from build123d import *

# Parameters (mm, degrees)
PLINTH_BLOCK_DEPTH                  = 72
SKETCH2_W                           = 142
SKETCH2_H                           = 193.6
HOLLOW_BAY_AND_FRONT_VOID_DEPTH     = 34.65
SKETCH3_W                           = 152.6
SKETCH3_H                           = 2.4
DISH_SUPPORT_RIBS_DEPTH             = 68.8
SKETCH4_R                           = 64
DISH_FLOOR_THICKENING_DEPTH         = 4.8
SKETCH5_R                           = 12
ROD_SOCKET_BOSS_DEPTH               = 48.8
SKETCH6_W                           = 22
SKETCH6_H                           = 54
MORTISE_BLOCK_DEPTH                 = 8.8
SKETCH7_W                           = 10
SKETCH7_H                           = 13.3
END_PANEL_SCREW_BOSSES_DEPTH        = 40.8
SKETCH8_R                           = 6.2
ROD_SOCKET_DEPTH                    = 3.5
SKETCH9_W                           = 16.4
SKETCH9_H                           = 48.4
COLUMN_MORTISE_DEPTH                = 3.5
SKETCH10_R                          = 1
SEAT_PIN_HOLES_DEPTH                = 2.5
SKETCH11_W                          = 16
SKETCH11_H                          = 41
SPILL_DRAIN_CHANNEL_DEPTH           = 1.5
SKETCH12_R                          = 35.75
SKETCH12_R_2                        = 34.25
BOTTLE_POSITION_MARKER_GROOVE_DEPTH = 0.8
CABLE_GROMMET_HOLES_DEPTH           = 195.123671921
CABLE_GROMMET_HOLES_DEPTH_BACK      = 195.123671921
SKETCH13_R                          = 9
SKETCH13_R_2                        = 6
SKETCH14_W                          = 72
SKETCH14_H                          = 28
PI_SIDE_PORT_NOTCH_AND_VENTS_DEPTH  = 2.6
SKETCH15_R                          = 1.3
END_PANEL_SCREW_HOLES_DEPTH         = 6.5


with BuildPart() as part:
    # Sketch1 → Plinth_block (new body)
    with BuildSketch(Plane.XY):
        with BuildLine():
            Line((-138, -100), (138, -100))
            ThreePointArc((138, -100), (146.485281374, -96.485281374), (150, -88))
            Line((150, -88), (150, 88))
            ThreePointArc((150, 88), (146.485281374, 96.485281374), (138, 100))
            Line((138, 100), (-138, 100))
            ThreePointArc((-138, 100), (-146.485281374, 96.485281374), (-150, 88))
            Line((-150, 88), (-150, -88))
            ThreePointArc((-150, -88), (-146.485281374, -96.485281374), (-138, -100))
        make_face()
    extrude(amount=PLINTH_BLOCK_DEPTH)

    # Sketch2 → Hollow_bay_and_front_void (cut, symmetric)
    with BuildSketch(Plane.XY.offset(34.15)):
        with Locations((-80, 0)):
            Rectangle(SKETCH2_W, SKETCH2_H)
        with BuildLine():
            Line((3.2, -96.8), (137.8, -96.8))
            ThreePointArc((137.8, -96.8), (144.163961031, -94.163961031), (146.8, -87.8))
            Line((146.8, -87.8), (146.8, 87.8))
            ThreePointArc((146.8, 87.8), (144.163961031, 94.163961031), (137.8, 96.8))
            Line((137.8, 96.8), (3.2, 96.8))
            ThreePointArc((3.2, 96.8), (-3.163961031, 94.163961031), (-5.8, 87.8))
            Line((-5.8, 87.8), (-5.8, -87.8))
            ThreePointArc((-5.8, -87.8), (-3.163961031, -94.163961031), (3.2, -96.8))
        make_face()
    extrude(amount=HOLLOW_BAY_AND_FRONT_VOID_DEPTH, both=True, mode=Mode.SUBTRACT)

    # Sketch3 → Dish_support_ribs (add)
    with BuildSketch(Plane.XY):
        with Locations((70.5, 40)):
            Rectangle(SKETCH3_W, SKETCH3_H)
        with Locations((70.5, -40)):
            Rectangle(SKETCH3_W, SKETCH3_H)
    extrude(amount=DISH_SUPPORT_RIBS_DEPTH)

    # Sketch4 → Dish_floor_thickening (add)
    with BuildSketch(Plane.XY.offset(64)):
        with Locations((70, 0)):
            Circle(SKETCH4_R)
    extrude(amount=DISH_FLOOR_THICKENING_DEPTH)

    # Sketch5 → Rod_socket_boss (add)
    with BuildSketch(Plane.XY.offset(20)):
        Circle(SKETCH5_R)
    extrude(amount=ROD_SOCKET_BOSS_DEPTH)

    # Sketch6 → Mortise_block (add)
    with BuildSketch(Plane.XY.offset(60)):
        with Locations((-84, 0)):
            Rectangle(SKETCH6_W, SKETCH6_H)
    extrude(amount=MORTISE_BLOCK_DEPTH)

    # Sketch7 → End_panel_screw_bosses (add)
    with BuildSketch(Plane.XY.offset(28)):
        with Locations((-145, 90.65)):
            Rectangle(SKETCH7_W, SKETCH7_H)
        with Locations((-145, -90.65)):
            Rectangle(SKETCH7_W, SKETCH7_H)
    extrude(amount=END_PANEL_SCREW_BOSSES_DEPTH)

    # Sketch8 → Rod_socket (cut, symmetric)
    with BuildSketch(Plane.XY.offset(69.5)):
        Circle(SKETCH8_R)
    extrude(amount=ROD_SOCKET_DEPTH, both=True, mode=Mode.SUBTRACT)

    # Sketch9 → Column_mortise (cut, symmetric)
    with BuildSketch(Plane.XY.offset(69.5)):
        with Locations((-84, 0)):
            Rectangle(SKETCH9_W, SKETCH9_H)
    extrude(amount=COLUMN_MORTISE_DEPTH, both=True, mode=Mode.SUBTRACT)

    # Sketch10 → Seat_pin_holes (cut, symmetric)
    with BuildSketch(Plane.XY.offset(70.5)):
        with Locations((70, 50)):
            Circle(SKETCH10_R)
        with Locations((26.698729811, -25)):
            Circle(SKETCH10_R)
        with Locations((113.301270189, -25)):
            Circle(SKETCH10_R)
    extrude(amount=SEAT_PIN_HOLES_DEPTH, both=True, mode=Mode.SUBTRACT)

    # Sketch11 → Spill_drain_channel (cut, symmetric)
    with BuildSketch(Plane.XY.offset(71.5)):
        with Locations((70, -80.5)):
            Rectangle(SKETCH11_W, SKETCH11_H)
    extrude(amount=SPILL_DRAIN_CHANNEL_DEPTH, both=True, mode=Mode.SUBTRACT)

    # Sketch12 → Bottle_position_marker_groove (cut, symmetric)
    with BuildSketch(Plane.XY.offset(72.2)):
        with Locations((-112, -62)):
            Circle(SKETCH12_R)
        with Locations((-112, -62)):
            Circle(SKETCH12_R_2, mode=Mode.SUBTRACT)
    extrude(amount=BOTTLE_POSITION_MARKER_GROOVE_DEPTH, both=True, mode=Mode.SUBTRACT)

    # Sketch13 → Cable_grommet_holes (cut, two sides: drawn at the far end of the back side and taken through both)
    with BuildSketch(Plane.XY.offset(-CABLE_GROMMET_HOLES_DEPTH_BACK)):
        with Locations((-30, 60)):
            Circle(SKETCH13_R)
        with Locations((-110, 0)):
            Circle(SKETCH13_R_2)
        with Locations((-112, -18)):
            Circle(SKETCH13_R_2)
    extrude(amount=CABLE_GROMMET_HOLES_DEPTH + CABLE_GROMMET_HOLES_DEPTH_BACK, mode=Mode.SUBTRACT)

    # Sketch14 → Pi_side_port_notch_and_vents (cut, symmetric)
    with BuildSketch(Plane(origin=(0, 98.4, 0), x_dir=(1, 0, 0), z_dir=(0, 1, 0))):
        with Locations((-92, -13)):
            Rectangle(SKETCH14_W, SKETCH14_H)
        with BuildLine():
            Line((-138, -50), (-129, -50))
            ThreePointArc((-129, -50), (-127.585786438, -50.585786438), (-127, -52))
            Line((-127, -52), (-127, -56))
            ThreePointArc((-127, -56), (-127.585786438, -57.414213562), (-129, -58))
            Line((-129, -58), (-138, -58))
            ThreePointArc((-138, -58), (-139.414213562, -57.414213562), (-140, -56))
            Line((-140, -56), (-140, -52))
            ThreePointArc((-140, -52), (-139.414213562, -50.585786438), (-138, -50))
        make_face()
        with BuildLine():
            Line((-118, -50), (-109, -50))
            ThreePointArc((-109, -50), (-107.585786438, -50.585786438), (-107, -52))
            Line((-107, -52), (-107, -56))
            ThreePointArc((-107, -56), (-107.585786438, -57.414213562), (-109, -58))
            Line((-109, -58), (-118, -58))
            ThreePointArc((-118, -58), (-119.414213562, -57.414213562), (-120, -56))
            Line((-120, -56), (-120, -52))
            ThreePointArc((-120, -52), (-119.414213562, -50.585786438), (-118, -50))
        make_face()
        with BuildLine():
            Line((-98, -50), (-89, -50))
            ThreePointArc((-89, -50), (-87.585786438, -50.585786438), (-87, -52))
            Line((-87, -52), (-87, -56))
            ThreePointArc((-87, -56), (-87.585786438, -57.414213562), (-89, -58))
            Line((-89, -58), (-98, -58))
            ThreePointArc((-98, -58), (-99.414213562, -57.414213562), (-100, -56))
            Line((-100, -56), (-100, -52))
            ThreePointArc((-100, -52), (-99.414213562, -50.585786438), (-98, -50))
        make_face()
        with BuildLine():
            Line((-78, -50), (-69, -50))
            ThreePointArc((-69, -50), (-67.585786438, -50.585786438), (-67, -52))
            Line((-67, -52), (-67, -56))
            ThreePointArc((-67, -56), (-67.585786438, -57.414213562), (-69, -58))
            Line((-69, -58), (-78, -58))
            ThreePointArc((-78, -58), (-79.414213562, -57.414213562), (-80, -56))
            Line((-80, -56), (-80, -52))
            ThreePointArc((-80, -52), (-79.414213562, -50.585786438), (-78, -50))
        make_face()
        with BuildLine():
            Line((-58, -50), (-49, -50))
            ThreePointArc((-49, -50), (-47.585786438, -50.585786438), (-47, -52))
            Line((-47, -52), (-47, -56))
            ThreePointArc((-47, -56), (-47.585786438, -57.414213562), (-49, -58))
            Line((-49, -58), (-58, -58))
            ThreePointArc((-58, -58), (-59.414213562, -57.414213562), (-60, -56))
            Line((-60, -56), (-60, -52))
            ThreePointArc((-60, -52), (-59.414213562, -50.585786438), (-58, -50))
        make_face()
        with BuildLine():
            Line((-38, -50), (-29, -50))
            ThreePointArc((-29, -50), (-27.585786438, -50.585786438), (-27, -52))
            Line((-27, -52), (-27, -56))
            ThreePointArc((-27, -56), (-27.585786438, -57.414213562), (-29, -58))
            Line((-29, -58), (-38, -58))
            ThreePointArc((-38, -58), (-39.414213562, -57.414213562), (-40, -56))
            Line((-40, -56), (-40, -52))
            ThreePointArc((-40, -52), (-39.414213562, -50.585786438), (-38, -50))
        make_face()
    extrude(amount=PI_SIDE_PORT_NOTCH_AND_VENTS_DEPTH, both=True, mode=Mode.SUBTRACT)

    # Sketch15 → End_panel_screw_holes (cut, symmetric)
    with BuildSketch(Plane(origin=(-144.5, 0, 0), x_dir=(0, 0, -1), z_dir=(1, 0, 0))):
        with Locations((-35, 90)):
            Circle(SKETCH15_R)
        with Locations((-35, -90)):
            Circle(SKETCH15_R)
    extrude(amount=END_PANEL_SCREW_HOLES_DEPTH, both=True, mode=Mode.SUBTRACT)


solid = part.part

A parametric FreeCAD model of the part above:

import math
import FreeCAD as App
import Part
import Sketcher
from FreeCAD import Vector


def add_polygon(sketch, points):
    """Adds a closed chain of lines whose ends are joined by coincident constraints."""
    first, n = sketch.GeometryCount, len(points)
    for a, b in zip(points, points[1:] + points[:1]):
        sketch.addGeometry(Part.LineSegment(App.Vector(*a, 0), App.Vector(*b, 0)), False)
    for i in range(n):
        sketch.addConstraint(Sketcher.Constraint("Coincident", first + i, 2, first + (i + 1) % n, 1))

doc = App.newDocument("Part")
params = doc.addObject("Spreadsheet::Sheet", "Params")
for row, (alias, value) in enumerate([
    ("sketch1_radius", "12 mm"),
    ("sketch1_width", "276 mm"),
    ("sketch1_height", "176 mm"),
    ("pad1_length", "72 mm"),
    ("sketch2_radius", "9 mm"),
    ("sketch2_width", "142 mm"),
    ("sketch2_width2", "134.6 mm"),
    ("sketch2_height", "193.6 mm"),
    ("pocket1_length", "69.3 mm"),
    ("sketch3_width", "152.6 mm"),
    ("sketch3_height", "2.4 mm"),
    ("pad2_length", "68.8 mm"),
    ("sketch4_diameter", "128 mm"),
    ("pad3_length", "4.8 mm"),
    ("sketch5_diameter", "24 mm"),
    ("pad4_length", "48.8 mm"),
    ("sketch6_width", "22 mm"),
    ("sketch6_height", "54 mm"),
    ("pad5_length", "8.8 mm"),
    ("sketch7_width", "10 mm"),
    ("sketch7_height", "13.3 mm"),
    ("pad6_length", "40.8 mm"),
    ("sketch8_diameter", "12.4 mm"),
    ("pocket2_length", "7 mm"),
    ("sketch9_width", "16.4 mm"),
    ("sketch9_height", "48.4 mm"),
    ("pocket3_length", "7 mm"),
    ("sketch10_diameter", "2 mm"),
    ("pocket4_length", "5 mm"),
    ("sketch11_width", "16 mm"),
    ("sketch11_height", "41 mm"),
    ("pocket5_length", "3 mm"),
    ("sketch12_diameter", "71.5 mm"),
    ("sketch12_diameter2", "68.5 mm"),
    ("pocket6_length", "1.6 mm"),
    ("sketch13_diameter", "18 mm"),
    ("sketch13_diameter2", "12 mm"),
    ("sketch14_radius", "2 mm"),
    ("sketch14_width", "72 mm"),
    ("sketch14_width2", "9 mm"),
    ("sketch14_height", "28 mm"),
    ("sketch14_height2", "4 mm"),
    ("pocket8_length", "5.2 mm"),
    ("sketch15_diameter", "2.6 mm"),
    ("pocket9_length", "13 mm"),
], start=1):
    params.set(f"A{row}", alias)
    params.set(f"B{row}", "=" + value)
    params.setAlias(f"B{row}", alias)

body = doc.addObject("PartDesign::Body", "Body")

sketch1 = body.newObject("Sketcher::SketchObject", "Sketch")
sketch1.AttachmentSupport = (doc.getObject("XY_Plane"), [""])
sketch1.MapMode = "FlatFace"
sketch1.addGeometry(Part.LineSegment(Vector(-138, -100, 0), Vector(138, -100, 0)), False)
sketch1.addGeometry(Part.ArcOfCircle(Part.Circle(Vector(138, -88, 0), Vector(0, 0, 1), 12), math.radians(-90), math.radians(0)), False)
sketch1.addGeometry(Part.LineSegment(Vector(150, -88, 0), Vector(150, 88, 0)), False)
sketch1.addGeometry(Part.ArcOfCircle(Part.Circle(Vector(138, 88, 0), Vector(0, 0, 1), 12), math.radians(0), math.radians(90)), False)
sketch1.addGeometry(Part.LineSegment(Vector(138, 100, 0), Vector(-138, 100, 0)), False)
sketch1.addGeometry(Part.ArcOfCircle(Part.Circle(Vector(-138, 88, 0), Vector(0, 0, 1), 12), math.radians(90), math.radians(180)), False)
sketch1.addGeometry(Part.LineSegment(Vector(-150, 88, 0), Vector(-150, -88, 0)), False)
sketch1.addGeometry(Part.ArcOfCircle(Part.Circle(Vector(-138, -88, 0), Vector(0, 0, 1), 12), math.radians(-180), math.radians(-90)), False)
sketch1.addConstraint(Sketcher.Constraint("Tangent", 0, 2, 1, 1))
sketch1.addConstraint(Sketcher.Constraint("Tangent", 1, 2, 2, 1))
sketch1.addConstraint(Sketcher.Constraint("Tangent", 2, 2, 3, 1))
sketch1.addConstraint(Sketcher.Constraint("Tangent", 3, 2, 4, 1))
sketch1.addConstraint(Sketcher.Constraint("Tangent", 4, 2, 5, 1))
sketch1.addConstraint(Sketcher.Constraint("Tangent", 5, 2, 6, 1))
sketch1.addConstraint(Sketcher.Constraint("Tangent", 6, 2, 7, 1))
sketch1.addConstraint(Sketcher.Constraint("Tangent", 7, 2, 0, 1))
sketch1.addConstraint(Sketcher.Constraint("Horizontal", 0))
sketch1.addConstraint(Sketcher.Constraint("Vertical", 2))
sketch1.addConstraint(Sketcher.Constraint("Horizontal", 4))
sketch1.addConstraint(Sketcher.Constraint("Vertical", 6))
sketch1.addConstraint(Sketcher.Constraint("Equal", 1, 3))
sketch1.addConstraint(Sketcher.Constraint("Equal", 3, 5))
sketch1.addConstraint(Sketcher.Constraint("Equal", 5, 7))
sketch1.addConstraint(Sketcher.Constraint("Symmetric", 1, 3, 5, 3, -1, 1))
sketch1.addConstraint(Sketcher.Constraint("Radius", 1, 12.0))
sketch1.addConstraint(Sketcher.Constraint("DistanceX", 0, 1, 0, 2, 276.0))
sketch1.addConstraint(Sketcher.Constraint("DistanceY", 2, 1, 2, 2, 176.0))
sketch1.setExpression("Constraints[16]", "Params.sketch1_radius")
sketch1.setExpression("Constraints[17]", "Params.sketch1_width")
sketch1.setExpression("Constraints[18]", "Params.sketch1_height")
pad1 = body.newObject("PartDesign::Pad", "Pad")
pad1.Profile = sketch1
pad1.setExpression("Length", "Params.pad1_length")

sketch2 = body.newObject("Sketcher::SketchObject", "Sketch001")
sketch2.AttachmentSupport = (doc.getObject("XY_Plane"), [""])
sketch2.MapMode = "FlatFace"
sketch2.AttachmentOffset = App.Placement(Vector(0, 0, 34.15), App.Rotation())
add_polygon(sketch2, [(-151, 96.8), (-151, -96.8), (-9, -96.8), (-9, 96.8)])
sketch2.addGeometry(Part.LineSegment(Vector(3.2, -96.8, 0), Vector(137.8, -96.8, 0)), False)
sketch2.addGeometry(Part.ArcOfCircle(Part.Circle(Vector(137.8, -87.8, 0), Vector(0, 0, 1), 9), math.radians(-90), math.radians(0)), False)
sketch2.addGeometry(Part.LineSegment(Vector(146.8, -87.8, 0), Vector(146.8, 87.8, 0)), False)
sketch2.addGeometry(Part.ArcOfCircle(Part.Circle(Vector(137.8, 87.8, 0), Vector(0, 0, 1), 9), math.radians(0), math.radians(90)), False)
sketch2.addGeometry(Part.LineSegment(Vector(137.8, 96.8, 0), Vector(3.2, 96.8, 0)), False)
sketch2.addGeometry(Part.ArcOfCircle(Part.Circle(Vector(3.2, 87.8, 0), Vector(0, 0, 1), 9), math.radians(90), math.radians(180)), False)
sketch2.addGeometry(Part.LineSegment(Vector(-5.8, 87.8, 0), Vector(-5.8, -87.8, 0)), False)
sketch2.addGeometry(Part.ArcOfCircle(Part.Circle(Vector(3.2, -87.8, 0), Vector(0, 0, 1), 9), math.radians(180), math.radians(270)), False)
sketch2.addConstraint(Sketcher.Constraint("Tangent", 4, 2, 5, 1))
sketch2.addConstraint(Sketcher.Constraint("Tangent", 5, 2, 6, 1))
sketch2.addConstraint(Sketcher.Constraint("Tangent", 6, 2, 7, 1))
sketch2.addConstraint(Sketcher.Constraint("Tangent", 7, 2, 8, 1))
sketch2.addConstraint(Sketcher.Constraint("Tangent", 8, 2, 9, 1))
sketch2.addConstraint(Sketcher.Constraint("Tangent", 9, 2, 10, 1))
sketch2.addConstraint(Sketcher.Constraint("Tangent", 10, 2, 11, 1))
sketch2.addConstraint(Sketcher.Constraint("Tangent", 11, 2, 4, 1))
sketch2.addConstraint(Sketcher.Constraint("Vertical", 0))
sketch2.addConstraint(Sketcher.Constraint("Horizontal", 1))
sketch2.addConstraint(Sketcher.Constraint("Vertical", 2))
sketch2.addConstraint(Sketcher.Constraint("Horizontal", 3))
sketch2.addConstraint(Sketcher.Constraint("Horizontal", 4))
sketch2.addConstraint(Sketcher.Constraint("Vertical", 6))
sketch2.addConstraint(Sketcher.Constraint("Horizontal", 8))
sketch2.addConstraint(Sketcher.Constraint("Vertical", 10))
sketch2.addConstraint(Sketcher.Constraint("Equal", 5, 7))
sketch2.addConstraint(Sketcher.Constraint("Equal", 7, 9))
sketch2.addConstraint(Sketcher.Constraint("Equal", 9, 11))
sketch2.addConstraint(Sketcher.Constraint("Horizontal", 1, 2, 4, 2))
sketch2.addConstraint(Sketcher.Constraint("Horizontal", 3, 2, 7, 2))
sketch2.addConstraint(Sketcher.Constraint("Radius", 5, 9.0))
sketch2.addConstraint(Sketcher.Constraint("DistanceX", 1, 1, 1, 2, 142.0))
sketch2.addConstraint(Sketcher.Constraint("DistanceX", 4, 1, 4, 2, 134.6))
sketch2.addConstraint(Sketcher.Constraint("DistanceY", 0, 2, 0, 1, 193.6))
sketch2.addConstraint(Sketcher.Constraint("DistanceX", 0, 2, -1, 1, 151.0))
sketch2.addConstraint(Sketcher.Constraint("DistanceX", -1, 1, 5, 3, 137.8))
sketch2.addConstraint(Sketcher.Constraint("DistanceY", 5, 3, -1, 1, 87.8))
sketch2.setExpression("Constraints[25]", "Params.sketch2_radius")
sketch2.setExpression("Constraints[26]", "Params.sketch2_width")
sketch2.setExpression("Constraints[27]", "Params.sketch2_width2")
sketch2.setExpression("Constraints[28]", "Params.sketch2_height")
pocket1 = body.newObject("PartDesign::Pocket", "Pocket")
pocket1.Profile = sketch2
pocket1.setExpression("Length", "Params.pocket1_length")
pocket1.Midplane = True

sketch3 = body.newObject("Sketcher::SketchObject", "Sketch002")
sketch3.AttachmentSupport = (doc.getObject("XY_Plane"), [""])
sketch3.MapMode = "FlatFace"
add_polygon(sketch3, [(-5.8, 41.2), (-5.8, 38.8), (146.8, 38.8), (146.8, 41.2)])
add_polygon(sketch3, [(-5.8, -38.8), (-5.8, -41.2), (146.8, -41.2), (146.8, -38.8)])
sketch3.addConstraint(Sketcher.Constraint("Vertical", 0))
sketch3.addConstraint(Sketcher.Constraint("Horizontal", 1))
sketch3.addConstraint(Sketcher.Constraint("Vertical", 2))
sketch3.addConstraint(Sketcher.Constraint("Horizontal", 3))
sketch3.addConstraint(Sketcher.Constraint("Vertical", 4))
sketch3.addConstraint(Sketcher.Constraint("Horizontal", 5))
sketch3.addConstraint(Sketcher.Constraint("Vertical", 6))
sketch3.addConstraint(Sketcher.Constraint("Horizontal", 7))
sketch3.addConstraint(Sketcher.Constraint("Symmetric", 3, 2, 4, 2, -1))
sketch3.addConstraint(Sketcher.Constraint("Symmetric", 1, 2, 6, 2, -1))
sketch3.addConstraint(Sketcher.Constraint("DistanceX", 1, 1, 1, 2, 152.6))
sketch3.addConstraint(Sketcher.Constraint("DistanceY", 0, 2, 0, 1, 2.4))
sketch3.addConstraint(Sketcher.Constraint("DistanceY", 4, 2, 0, 2, 80.0))
sketch3.addConstraint(Sketcher.Constraint("DistanceX", 0, 2, -1, 1, 5.8))
sketch3.setExpression("Constraints[18]", "Params.sketch3_width")
sketch3.setExpression("Constraints[19]", "Params.sketch3_height")
pad2 = body.newObject("PartDesign::Pad", "Pad001")
pad2.Profile = sketch3
pad2.setExpression("Length", "Params.pad2_length")

sketch4 = body.newObject("Sketcher::SketchObject", "Sketch003")
sketch4.AttachmentSupport = (doc.getObject("XY_Plane"), [""])
sketch4.MapMode = "FlatFace"
sketch4.AttachmentOffset = App.Placement(Vector(0, 0, 64), App.Rotation())
sketch4.addGeometry(Part.Circle(Vector(70, 0, 0), Vector(0, 0, 1), 64), False)
sketch4.addConstraint(Sketcher.Constraint("PointOnObject", 0, 3, -1))
sketch4.addConstraint(Sketcher.Constraint("Diameter", 0, 128.0))
sketch4.addConstraint(Sketcher.Constraint("DistanceX", -1, 1, 0, 3, 70.0))
sketch4.setExpression("Constraints[1]", "Params.sketch4_diameter")
pad3 = body.newObject("PartDesign::Pad", "Pad002")
pad3.Profile = sketch4
pad3.setExpression("Length", "Params.pad3_length")

sketch5 = body.newObject("Sketcher::SketchObject", "Sketch004")
sketch5.AttachmentSupport = (doc.getObject("XY_Plane"), [""])
sketch5.MapMode = "FlatFace"
sketch5.AttachmentOffset = App.Placement(Vector(0, 0, 20), App.Rotation())
sketch5.addGeometry(Part.Circle(Vector(0, 0, 0), Vector(0, 0, 1), 12), False)
sketch5.addConstraint(Sketcher.Constraint("Coincident", 0, 3, -1, 1))
sketch5.addConstraint(Sketcher.Constraint("Diameter", 0, 24.0))
sketch5.setExpression("Constraints[1]", "Params.sketch5_diameter")
pad4 = body.newObject("PartDesign::Pad", "Pad003")
pad4.Profile = sketch5
pad4.setExpression("Length", "Params.pad4_length")

sketch6 = body.newObject("Sketcher::SketchObject", "Sketch005")
sketch6.AttachmentSupport = (doc.getObject("XY_Plane"), [""])
sketch6.MapMode = "FlatFace"
sketch6.AttachmentOffset = App.Placement(Vector(0, 0, 60), App.Rotation())
add_polygon(sketch6, [(-95, 27), (-95, -27), (-73, -27), (-73, 27)])
sketch6.addConstraint(Sketcher.Constraint("Vertical", 0))
sketch6.addConstraint(Sketcher.Constraint("Horizontal", 1))
sketch6.addConstraint(Sketcher.Constraint("Vertical", 2))
sketch6.addConstraint(Sketcher.Constraint("Horizontal", 3))
sketch6.addConstraint(Sketcher.Constraint("DistanceX", 1, 1, 1, 2, 22.0))
sketch6.addConstraint(Sketcher.Constraint("DistanceY", 0, 2, 0, 1, 54.0))
sketch6.addConstraint(Sketcher.Constraint("DistanceX", 0, 2, -1, 1, 95.0))
sketch6.addConstraint(Sketcher.Constraint("DistanceY", 0, 2, -1, 1, 27.0))
sketch6.setExpression("Constraints[8]", "Params.sketch6_width")
sketch6.setExpression("Constraints[9]", "Params.sketch6_height")
pad5 = body.newObject("PartDesign::Pad", "Pad004")
pad5.Profile = sketch6
pad5.setExpression("Length", "Params.pad5_length")

sketch7 = body.newObject("Sketcher::SketchObject", "Sketch006")
sketch7.AttachmentSupport = (doc.getObject("XY_Plane"), [""])
sketch7.MapMode = "FlatFace"
sketch7.AttachmentOffset = App.Placement(Vector(0, 0, 28), App.Rotation())
add_polygon(sketch7, [(-150, 97.3), (-150, 84), (-140, 84), (-140, 97.3)])
add_polygon(sketch7, [(-150, -84), (-150, -97.3), (-140, -97.3), (-140, -84)])
sketch7.addConstraint(Sketcher.Constraint("Vertical", 0))
sketch7.addConstraint(Sketcher.Constraint("Horizontal", 1))
sketch7.addConstraint(Sketcher.Constraint("Vertical", 2))
sketch7.addConstraint(Sketcher.Constraint("Horizontal", 3))
sketch7.addConstraint(Sketcher.Constraint("Vertical", 4))
sketch7.addConstraint(Sketcher.Constraint("Horizontal", 5))
sketch7.addConstraint(Sketcher.Constraint("Vertical", 6))
sketch7.addConstraint(Sketcher.Constraint("Horizontal", 7))
sketch7.addConstraint(Sketcher.Constraint("Symmetric", 3, 2, 4, 2, -1))
sketch7.addConstraint(Sketcher.Constraint("Symmetric", 1, 2, 6, 2, -1))
sketch7.addConstraint(Sketcher.Constraint("DistanceX", 1, 1, 1, 2, 10.0))
sketch7.addConstraint(Sketcher.Constraint("DistanceY", 0, 2, 0, 1, 13.3))
sketch7.addConstraint(Sketcher.Constraint("DistanceX", 0, 2, -1, 1, 150.0))
sketch7.addConstraint(Sketcher.Constraint("DistanceY", -1, 1, 0, 2, 84.0))
sketch7.setExpression("Constraints[18]", "Params.sketch7_width")
sketch7.setExpression("Constraints[19]", "Params.sketch7_height")
pad6 = body.newObject("PartDesign::Pad", "Pad005")
pad6.Profile = sketch7
pad6.setExpression("Length", "Params.pad6_length")

sketch8 = body.newObject("Sketcher::SketchObject", "Sketch007")
sketch8.AttachmentSupport = (doc.getObject("XY_Plane"), [""])
sketch8.MapMode = "FlatFace"
sketch8.AttachmentOffset = App.Placement(Vector(0, 0, 69.5), App.Rotation())
sketch8.addGeometry(Part.Circle(Vector(0, 0, 0), Vector(0, 0, 1), 6.2), False)
sketch8.addConstraint(Sketcher.Constraint("Coincident", 0, 3, -1, 1))
sketch8.addConstraint(Sketcher.Constraint("Diameter", 0, 12.4))
sketch8.setExpression("Constraints[1]", "Params.sketch8_diameter")
pocket2 = body.newObject("PartDesign::Pocket", "Pocket001")
pocket2.Profile = sketch8
pocket2.setExpression("Length", "Params.pocket2_length")
pocket2.Midplane = True

sketch9 = body.newObject("Sketcher::SketchObject", "Sketch008")
sketch9.AttachmentSupport = (doc.getObject("XY_Plane"), [""])
sketch9.MapMode = "FlatFace"
sketch9.AttachmentOffset = App.Placement(Vector(0, 0, 69.5), App.Rotation())
add_polygon(sketch9, [(-92.2, 24.2), (-92.2, -24.2), (-75.8, -24.2), (-75.8, 24.2)])
sketch9.addConstraint(Sketcher.Constraint("Vertical", 0))
sketch9.addConstraint(Sketcher.Constraint("Horizontal", 1))
sketch9.addConstraint(Sketcher.Constraint("Vertical", 2))
sketch9.addConstraint(Sketcher.Constraint("Horizontal", 3))
sketch9.addConstraint(Sketcher.Constraint("DistanceX", 1, 1, 1, 2, 16.4))
sketch9.addConstraint(Sketcher.Constraint("DistanceY", 0, 2, 0, 1, 48.4))
sketch9.addConstraint(Sketcher.Constraint("DistanceX", 0, 2, -1, 1, 92.2))
sketch9.addConstraint(Sketcher.Constraint("DistanceY", 0, 2, -1, 1, 24.2))
sketch9.setExpression("Constraints[8]", "Params.sketch9_width")
sketch9.setExpression("Constraints[9]", "Params.sketch9_height")
pocket3 = body.newObject("PartDesign::Pocket", "Pocket002")
pocket3.Profile = sketch9
pocket3.setExpression("Length", "Params.pocket3_length")
pocket3.Midplane = True

sketch10 = body.newObject("Sketcher::SketchObject", "Sketch009")
sketch10.AttachmentSupport = (doc.getObject("XY_Plane"), [""])
sketch10.MapMode = "FlatFace"
sketch10.AttachmentOffset = App.Placement(Vector(0, 0, 70.5), App.Rotation())
sketch10.addGeometry(Part.Circle(Vector(70, 50, 0), Vector(0, 0, 1), 1), False)
sketch10.addGeometry(Part.Circle(Vector(26.69873, -25, 0), Vector(0, 0, 1), 1), False)
sketch10.addGeometry(Part.Circle(Vector(113.30127, -25, 0), Vector(0, 0, 1), 1), False)
sketch10.addConstraint(Sketcher.Constraint("Equal", 0, 1))
sketch10.addConstraint(Sketcher.Constraint("Equal", 1, 2))
sketch10.addConstraint(Sketcher.Constraint("Horizontal", 1, 3, 2, 3))
sketch10.addConstraint(Sketcher.Constraint("Diameter", 0, 2.0))
sketch10.addConstraint(Sketcher.Constraint("DistanceX", -1, 1, 0, 3, 70.0))
sketch10.addConstraint(Sketcher.Constraint("DistanceY", -1, 1, 0, 3, 50.0))
sketch10.addConstraint(Sketcher.Constraint("DistanceY", 1, 3, -1, 1, 25.0))
sketch10.addConstraint(Sketcher.Constraint("DistanceX", -1, 1, 1, 3, 26.69873))
sketch10.addConstraint(Sketcher.Constraint("DistanceX", -1, 1, 2, 3, 113.30127))
sketch10.setExpression("Constraints[3]", "Params.sketch10_diameter")
pocket4 = body.newObject("PartDesign::Pocket", "Pocket003")
pocket4.Profile = sketch10
pocket4.setExpression("Length", "Params.pocket4_length")
pocket4.Midplane = True

sketch11 = body.newObject("Sketcher::SketchObject", "Sketch010")
sketch11.AttachmentSupport = (doc.getObject("XY_Plane"), [""])
sketch11.MapMode = "FlatFace"
sketch11.AttachmentOffset = App.Placement(Vector(0, 0, 71.5), App.Rotation())
add_polygon(sketch11, [(62, -60), (62, -101), (78, -101), (78, -60)])
sketch11.addConstraint(Sketcher.Constraint("Vertical", 0))
sketch11.addConstraint(Sketcher.Constraint("Horizontal", 1))
sketch11.addConstraint(Sketcher.Constraint("Vertical", 2))
sketch11.addConstraint(Sketcher.Constraint("Horizontal", 3))
sketch11.addConstraint(Sketcher.Constraint("DistanceX", 1, 1, 1, 2, 16.0))
sketch11.addConstraint(Sketcher.Constraint("DistanceY", 0, 2, 0, 1, 41.0))
sketch11.addConstraint(Sketcher.Constraint("DistanceX", -1, 1, 0, 2, 62.0))
sketch11.addConstraint(Sketcher.Constraint("DistanceY", 0, 2, -1, 1, 101.0))
sketch11.setExpression("Constraints[8]", "Params.sketch11_width")
sketch11.setExpression("Constraints[9]", "Params.sketch11_height")
pocket5 = body.newObject("PartDesign::Pocket", "Pocket004")
pocket5.Profile = sketch11
pocket5.setExpression("Length", "Params.pocket5_length")
pocket5.Midplane = True

sketch12 = body.newObject("Sketcher::SketchObject", "Sketch011")
sketch12.AttachmentSupport = (doc.getObject("XY_Plane"), [""])
sketch12.MapMode = "FlatFace"
sketch12.AttachmentOffset = App.Placement(Vector(0, 0, 72.2), App.Rotation())
sketch12.addGeometry(Part.Circle(Vector(-112, -62, 0), Vector(0, 0, 1), 35.75), False)
sketch12.addGeometry(Part.Circle(Vector(-112, -62, 0), Vector(0, 0, 1), 34.25), False)
sketch12.addConstraint(Sketcher.Constraint("Coincident", 1, 3, 0, 3))
sketch12.addConstraint(Sketcher.Constraint("Diameter", 0, 71.5))
sketch12.addConstraint(Sketcher.Constraint("Diameter", 1, 68.5))
sketch12.addConstraint(Sketcher.Constraint("DistanceX", 0, 3, -1, 1, 112.0))
sketch12.addConstraint(Sketcher.Constraint("DistanceY", 0, 3, -1, 1, 62.0))
sketch12.setExpression("Constraints[1]", "Params.sketch12_diameter")
sketch12.setExpression("Constraints[2]", "Params.sketch12_diameter2")
pocket6 = body.newObject("PartDesign::Pocket", "Pocket005")
pocket6.Profile = sketch12
pocket6.setExpression("Length", "Params.pocket6_length")
pocket6.Midplane = True

sketch13 = body.newObject("Sketcher::SketchObject", "Sketch012")
sketch13.AttachmentSupport = (doc.getObject("XY_Plane"), [""])
sketch13.MapMode = "FlatFace"
sketch13.addGeometry(Part.Circle(Vector(-30, 60, 0), Vector(0, 0, 1), 9), False)
sketch13.addGeometry(Part.Circle(Vector(-110, 0, 0), Vector(0, 0, 1), 6), False)
sketch13.addGeometry(Part.Circle(Vector(-112, -18, 0), Vector(0, 0, 1), 6), False)
sketch13.addConstraint(Sketcher.Constraint("Equal", 1, 2))
sketch13.addConstraint(Sketcher.Constraint("PointOnObject", 1, 3, -1))
sketch13.addConstraint(Sketcher.Constraint("Diameter", 0, 18.0))
sketch13.addConstraint(Sketcher.Constraint("Diameter", 1, 12.0))
sketch13.addConstraint(Sketcher.Constraint("DistanceX", 0, 3, -1, 1, 30.0))
sketch13.addConstraint(Sketcher.Constraint("DistanceY", -1, 1, 0, 3, 60.0))
sketch13.addConstraint(Sketcher.Constraint("DistanceX", 1, 3, -1, 1, 110.0))
sketch13.addConstraint(Sketcher.Constraint("DistanceX", 2, 3, -1, 1, 112.0))
sketch13.addConstraint(Sketcher.Constraint("DistanceY", 2, 3, -1, 1, 18.0))
sketch13.setExpression("Constraints[2]", "Params.sketch13_diameter")
sketch13.setExpression("Constraints[3]", "Params.sketch13_diameter2")
pocket7 = body.newObject("PartDesign::Pocket", "Pocket006")
pocket7.Profile = sketch13
pocket7.Type = "ThroughAll"
pocket7.Midplane = True

sketch14 = body.newObject("Sketcher::SketchObject", "Sketch013")
sketch14.AttachmentSupport = (doc.getObject("XZ_Plane"), [""])
sketch14.MapMode = "FlatFace"
sketch14.AttachmentOffset = App.Placement(Vector(0, 0, -98.4), App.Rotation())
add_polygon(sketch14, [(-128, -1), (-128, 27), (-56, 27), (-56, -1)])
sketch14.addGeometry(Part.LineSegment(Vector(-129, 50, 0), Vector(-138, 50, 0)), False)
sketch14.addGeometry(Part.ArcOfCircle(Part.Circle(Vector(-138, 52, 0), Vector(0, 0, 1), 2), math.radians(-180), math.radians(-90)), False)
sketch14.addGeometry(Part.LineSegment(Vector(-140, 52, 0), Vector(-140, 56, 0)), False)
sketch14.addGeometry(Part.ArcOfCircle(Part.Circle(Vector(-138, 56, 0), Vector(0, 0, 1), 2), math.radians(90), math.radians(180)), False)
sketch14.addGeometry(Part.LineSegment(Vector(-138, 58, 0), Vector(-129, 58, 0)), False)
sketch14.addGeometry(Part.ArcOfCircle(Part.Circle(Vector(-129, 56, 0), Vector(0, 0, 1), 2), math.radians(0), math.radians(90)), False)
sketch14.addGeometry(Part.LineSegment(Vector(-127, 56, 0), Vector(-127, 52, 0)), False)
sketch14.addGeometry(Part.ArcOfCircle(Part.Circle(Vector(-129, 52, 0), Vector(0, 0, 1), 2), math.radians(-90), math.radians(0)), False)
sketch14.addGeometry(Part.LineSegment(Vector(-109, 50, 0), Vector(-118, 50, 0)), False)
sketch14.addGeometry(Part.ArcOfCircle(Part.Circle(Vector(-118, 52, 0), Vector(0, 0, 1), 2), math.radians(-180), math.radians(-90)), False)
sketch14.addGeometry(Part.LineSegment(Vector(-120, 52, 0), Vector(-120, 56, 0)), False)
sketch14.addGeometry(Part.ArcOfCircle(Part.Circle(Vector(-118, 56, 0), Vector(0, 0, 1), 2), math.radians(90), math.radians(180)), False)
sketch14.addGeometry(Part.LineSegment(Vector(-118, 58, 0), Vector(-109, 58, 0)), False)
sketch14.addGeometry(Part.ArcOfCircle(Part.Circle(Vector(-109, 56, 0), Vector(0, 0, 1), 2), math.radians(0), math.radians(90)), False)
sketch14.addGeometry(Part.LineSegment(Vector(-107, 56, 0), Vector(-107, 52, 0)), False)
sketch14.addGeometry(Part.ArcOfCircle(Part.Circle(Vector(-109, 52, 0), Vector(0, 0, 1), 2), math.radians(-90), math.radians(0)), False)
sketch14.addGeometry(Part.LineSegment(Vector(-89, 50, 0), Vector(-98, 50, 0)), False)
sketch14.addGeometry(Part.ArcOfCircle(Part.Circle(Vector(-98, 52, 0), Vector(0, 0, 1), 2), math.radians(-180), math.radians(-90)), False)
sketch14.addGeometry(Part.LineSegment(Vector(-100, 52, 0), Vector(-100, 56, 0)), False)
sketch14.addGeometry(Part.ArcOfCircle(Part.Circle(Vector(-98, 56, 0), Vector(0, 0, 1), 2), math.radians(90), math.radians(180)), False)
sketch14.addGeometry(Part.LineSegment(Vector(-98, 58, 0), Vector(-89, 58, 0)), False)
sketch14.addGeometry(Part.ArcOfCircle(Part.Circle(Vector(-89, 56, 0), Vector(0, 0, 1), 2), math.radians(0), math.radians(90)), False)
sketch14.addGeometry(Part.LineSegment(Vector(-87, 56, 0), Vector(-87, 52, 0)), False)
sketch14.addGeometry(Part.ArcOfCircle(Part.Circle(Vector(-89, 52, 0), Vector(0, 0, 1), 2), math.radians(-90), math.radians(0)), False)
sketch14.addGeometry(Part.LineSegment(Vector(-69, 50, 0), Vector(-78, 50, 0)), False)
sketch14.addGeometry(Part.ArcOfCircle(Part.Circle(Vector(-78, 52, 0), Vector(0, 0, 1), 2), math.radians(-180), math.radians(-90)), False)
sketch14.addGeometry(Part.LineSegment(Vector(-80, 52, 0), Vector(-80, 56, 0)), False)
sketch14.addGeometry(Part.ArcOfCircle(Part.Circle(Vector(-78, 56, 0), Vector(0, 0, 1), 2), math.radians(90), math.radians(180)), False)
sketch14.addGeometry(Part.LineSegment(Vector(-78, 58, 0), Vector(-69, 58, 0)), False)
sketch14.addGeometry(Part.ArcOfCircle(Part.Circle(Vector(-69, 56, 0), Vector(0, 0, 1), 2), math.radians(0), math.radians(90)), False)
sketch14.addGeometry(Part.LineSegment(Vector(-67, 56, 0), Vector(-67, 52, 0)), False)
sketch14.addGeometry(Part.ArcOfCircle(Part.Circle(Vector(-69, 52, 0), Vector(0, 0, 1), 2), math.radians(-90), math.radians(0)), False)
sketch14.addGeometry(Part.LineSegment(Vector(-49, 50, 0), Vector(-58, 50, 0)), False)
sketch14.addGeometry(Part.ArcOfCircle(Part.Circle(Vector(-58, 52, 0), Vector(0, 0, 1), 2), math.radians(-180), math.radians(-90)), False)
sketch14.addGeometry(Part.LineSegment(Vector(-60, 52, 0), Vector(-60, 56, 0)), False)
sketch14.addGeometry(Part.ArcOfCircle(Part.Circle(Vector(-58, 56, 0), Vector(0, 0, 1), 2), math.radians(90), math.radians(180)), False)
sketch14.addGeometry(Part.LineSegment(Vector(-58, 58, 0), Vector(-49, 58, 0)), False)
sketch14.addGeometry(Part.ArcOfCircle(Part.Circle(Vector(-49, 56, 0), Vector(0, 0, 1), 2), math.radians(0), math.radians(90)), False)
sketch14.addGeometry(Part.LineSegment(Vector(-47, 56, 0), Vector(-47, 52, 0)), False)
sketch14.addGeometry(Part.ArcOfCircle(Part.Circle(Vector(-49, 52, 0), Vector(0, 0, 1), 2), math.radians(-90), math.radians(0)), False)
sketch14.addGeometry(Part.LineSegment(Vector(-29, 50, 0), Vector(-38, 50, 0)), False)
sketch14.addGeometry(Part.ArcOfCircle(Part.Circle(Vector(-38, 52, 0), Vector(0, 0, 1), 2), math.radians(-180), math.radians(-90)), False)
sketch14.addGeometry(Part.LineSegment(Vector(-40, 52, 0), Vector(-40, 56, 0)), False)
sketch14.addGeometry(Part.ArcOfCircle(Part.Circle(Vector(-38, 56, 0), Vector(0, 0, 1), 2), math.radians(90), math.radians(180)), False)
sketch14.addGeometry(Part.LineSegment(Vector(-38, 58, 0), Vector(-29, 58, 0)), False)
sketch14.addGeometry(Part.ArcOfCircle(Part.Circle(Vector(-29, 56, 0), Vector(0, 0, 1), 2), math.radians(0), math.radians(90)), False)
sketch14.addGeometry(Part.LineSegment(Vector(-27, 56, 0), Vector(-27, 52, 0)), False)
sketch14.addGeometry(Part.ArcOfCircle(Part.Circle(Vector(-29, 52, 0), Vector(0, 0, 1), 2), math.radians(-90), math.radians(0)), False)
sketch14.addConstraint(Sketcher.Constraint("Tangent", 4, 2, 5, 2))
sketch14.addConstraint(Sketcher.Constraint("Tangent", 5, 1, 6, 1))
sketch14.addConstraint(Sketcher.Constraint("Tangent", 6, 2, 7, 2))
sketch14.addConstraint(Sketcher.Constraint("Tangent", 7, 1, 8, 1))
sketch14.addConstraint(Sketcher.Constraint("Tangent", 8, 2, 9, 2))
sketch14.addConstraint(Sketcher.Constraint("Tangent", 9, 1, 10, 1))
sketch14.addConstraint(Sketcher.Constraint("Tangent", 10, 2, 11, 2))
sketch14.addConstraint(Sketcher.Constraint("Tangent", 11, 1, 4, 1))
sketch14.addConstraint(Sketcher.Constraint("Tangent", 12, 2, 13, 2))
sketch14.addConstraint(Sketcher.Constraint("Tangent", 13, 1, 14, 1))
sketch14.addConstraint(Sketcher.Constraint("Tangent", 14, 2, 15, 2))
sketch14.addConstraint(Sketcher.Constraint("Tangent", 15, 1, 16, 1))
sketch14.addConstraint(Sketcher.Constraint("Tangent", 16, 2, 17, 2))
sketch14.addConstraint(Sketcher.Constraint("Tangent", 17, 1, 18, 1))
sketch14.addConstraint(Sketcher.Constraint("Tangent", 18, 2, 19, 2))
sketch14.addConstraint(Sketcher.Constraint("Tangent", 19, 1, 12, 1))
sketch14.addConstraint(Sketcher.Constraint("Tangent", 20, 2, 21, 2))
sketch14.addConstraint(Sketcher.Constraint("Tangent", 21, 1, 22, 1))
sketch14.addConstraint(Sketcher.Constraint("Tangent", 22, 2, 23, 2))
sketch14.addConstraint(Sketcher.Constraint("Tangent", 23, 1, 24, 1))
sketch14.addConstraint(Sketcher.Constraint("Tangent", 24, 2, 25, 2))
sketch14.addConstraint(Sketcher.Constraint("Tangent", 25, 1, 26, 1))
sketch14.addConstraint(Sketcher.Constraint("Tangent", 26, 2, 27, 2))
sketch14.addConstraint(Sketcher.Constraint("Tangent", 27, 1, 20, 1))
sketch14.addConstraint(Sketcher.Constraint("Tangent", 28, 2, 29, 2))
sketch14.addConstraint(Sketcher.Constraint("Tangent", 29, 1, 30, 1))
sketch14.addConstraint(Sketcher.Constraint("Tangent", 30, 2, 31, 2))
sketch14.addConstraint(Sketcher.Constraint("Tangent", 31, 1, 32, 1))
sketch14.addConstraint(Sketcher.Constraint("Tangent", 32, 2, 33, 2))
sketch14.addConstraint(Sketcher.Constraint("Tangent", 33, 1, 34, 1))
sketch14.addConstraint(Sketcher.Constraint("Tangent", 34, 2, 35, 2))
sketch14.addConstraint(Sketcher.Constraint("Tangent", 35, 1, 28, 1))
sketch14.addConstraint(Sketcher.Constraint("Tangent", 36, 2, 37, 2))
sketch14.addConstraint(Sketcher.Constraint("Tangent", 37, 1, 38, 1))
sketch14.addConstraint(Sketcher.Constraint("Tangent", 38, 2, 39, 2))
sketch14.addConstraint(Sketcher.Constraint("Tangent", 39, 1, 40, 1))
sketch14.addConstraint(Sketcher.Constraint("Tangent", 40, 2, 41, 2))
sketch14.addConstraint(Sketcher.Constraint("Tangent", 41, 1, 42, 1))
sketch14.addConstraint(Sketcher.Constraint("Tangent", 42, 2, 43, 2))
sketch14.addConstraint(Sketcher.Constraint("Tangent", 43, 1, 36, 1))
sketch14.addConstraint(Sketcher.Constraint("Tangent", 44, 2, 45, 2))
sketch14.addConstraint(Sketcher.Constraint("Tangent", 45, 1, 46, 1))
sketch14.addConstraint(Sketcher.Constraint("Tangent", 46, 2, 47, 2))
sketch14.addConstraint(Sketcher.Constraint("Tangent", 47, 1, 48, 1))
sketch14.addConstraint(Sketcher.Constraint("Tangent", 48, 2, 49, 2))
sketch14.addConstraint(Sketcher.Constraint("Tangent", 49, 1, 50, 1))
sketch14.addConstraint(Sketcher.Constraint("Tangent", 50, 2, 51, 2))
sketch14.addConstraint(Sketcher.Constraint("Tangent", 51, 1, 44, 1))
sketch14.addConstraint(Sketcher.Constraint("Vertical", 0))
sketch14.addConstraint(Sketcher.Constraint("Horizontal", 1))
sketch14.addConstraint(Sketcher.Constraint("Vertical", 2))
sketch14.addConstraint(Sketcher.Constraint("Horizontal", 3))
sketch14.addConstraint(Sketcher.Constraint("Horizontal", 4))
sketch14.addConstraint(Sketcher.Constraint("Vertical", 6))
sketch14.addConstraint(Sketcher.Constraint("Horizontal", 8))
sketch14.addConstraint(Sketcher.Constraint("Vertical", 10))
sketch14.addConstraint(Sketcher.Constraint("Horizontal", 12))
sketch14.addConstraint(Sketcher.Constraint("Vertical", 14))
sketch14.addConstraint(Sketcher.Constraint("Horizontal", 16))
sketch14.addConstraint(Sketcher.Constraint("Vertical", 18))
sketch14.addConstraint(Sketcher.Constraint("Horizontal", 20))
sketch14.addConstraint(Sketcher.Constraint("Vertical", 22))
sketch14.addConstraint(Sketcher.Constraint("Horizontal", 24))
sketch14.addConstraint(Sketcher.Constraint("Vertical", 26))
sketch14.addConstraint(Sketcher.Constraint("Horizontal", 28))
sketch14.addConstraint(Sketcher.Constraint("Vertical", 30))
sketch14.addConstraint(Sketcher.Constraint("Horizontal", 32))
sketch14.addConstraint(Sketcher.Constraint("Vertical", 34))
sketch14.addConstraint(Sketcher.Constraint("Horizontal", 36))
sketch14.addConstraint(Sketcher.Constraint("Vertical", 38))
sketch14.addConstraint(Sketcher.Constraint("Horizontal", 40))
sketch14.addConstraint(Sketcher.Constraint("Vertical", 42))
sketch14.addConstraint(Sketcher.Constraint("Horizontal", 44))
sketch14.addConstraint(Sketcher.Constraint("Vertical", 46))
sketch14.addConstraint(Sketcher.Constraint("Horizontal", 48))
sketch14.addConstraint(Sketcher.Constraint("Vertical", 50))
sketch14.addConstraint(Sketcher.Constraint("Equal", 5, 7))
sketch14.addConstraint(Sketcher.Constraint("Equal", 7, 9))
sketch14.addConstraint(Sketcher.Constraint("Equal", 9, 11))
sketch14.addConstraint(Sketcher.Constraint("Equal", 11, 13))
sketch14.addConstraint(Sketcher.Constraint("Equal", 13, 15))
sketch14.addConstraint(Sketcher.Constraint("Equal", 15, 17))
sketch14.addConstraint(Sketcher.Constraint("Equal", 17, 19))
sketch14.addConstraint(Sketcher.Constraint("Equal", 19, 21))
sketch14.addConstraint(Sketcher.Constraint("Equal", 21, 23))
sketch14.addConstraint(Sketcher.Constraint("Equal", 23, 25))
sketch14.addConstraint(Sketcher.Constraint("Equal", 25, 27))
sketch14.addConstraint(Sketcher.Constraint("Equal", 27, 29))
sketch14.addConstraint(Sketcher.Constraint("Equal", 29, 31))
sketch14.addConstraint(Sketcher.Constraint("Equal", 31, 33))
sketch14.addConstraint(Sketcher.Constraint("Equal", 33, 35))
sketch14.addConstraint(Sketcher.Constraint("Equal", 35, 37))
sketch14.addConstraint(Sketcher.Constraint("Equal", 37, 39))
sketch14.addConstraint(Sketcher.Constraint("Equal", 39, 41))
sketch14.addConstraint(Sketcher.Constraint("Equal", 41, 43))
sketch14.addConstraint(Sketcher.Constraint("Equal", 43, 45))
sketch14.addConstraint(Sketcher.Constraint("Equal", 45, 47))
sketch14.addConstraint(Sketcher.Constraint("Equal", 47, 49))
sketch14.addConstraint(Sketcher.Constraint("Equal", 49, 51))
sketch14.addConstraint(Sketcher.Constraint("Horizontal", 11, 3, 13, 3))
sketch14.addConstraint(Sketcher.Constraint("Horizontal", 9, 3, 15, 3))
sketch14.addConstraint(Sketcher.Constraint("Horizontal", 19, 3, 21, 3))
sketch14.addConstraint(Sketcher.Constraint("Horizontal", 17, 3, 23, 3))
sketch14.addConstraint(Sketcher.Constraint("Horizontal", 27, 3, 29, 3))
sketch14.addConstraint(Sketcher.Constraint("Horizontal", 25, 3, 31, 3))
sketch14.addConstraint(Sketcher.Constraint("Horizontal", 35, 3, 37, 3))
sketch14.addConstraint(Sketcher.Constraint("Horizontal", 33, 3, 39, 3))
sketch14.addConstraint(Sketcher.Constraint("Horizontal", 43, 3, 45, 3))
sketch14.addConstraint(Sketcher.Constraint("Horizontal", 41, 3, 47, 3))
sketch14.addConstraint(Sketcher.Constraint("Equal", 8, 12))
sketch14.addConstraint(Sketcher.Constraint("Equal", 16, 20))
sketch14.addConstraint(Sketcher.Constraint("Equal", 24, 28))
sketch14.addConstraint(Sketcher.Constraint("Equal", 32, 36))
sketch14.addConstraint(Sketcher.Constraint("Equal", 40, 44))
sketch14.addConstraint(Sketcher.Constraint("Radius", 5, 2.0))
sketch14.addConstraint(Sketcher.Constraint("DistanceX", 1, 1, 1, 2, 72.0))
sketch14.addConstraint(Sketcher.Constraint("DistanceX", 4, 2, 4, 1, 9.0))
sketch14.addConstraint(Sketcher.Constraint("DistanceY", 0, 1, 0, 2, 28.0))
sketch14.addConstraint(Sketcher.Constraint("DistanceY", 6, 1, 6, 2, 4.0))
sketch14.addConstraint(Sketcher.Constraint("DistanceX", 5, 3, -1, 1, 138.0))
sketch14.addConstraint(Sketcher.Constraint("DistanceY", -1, 1, 5, 3, 52.0))
sketch14.addConstraint(Sketcher.Constraint("DistanceX", 13, 3, -1, 1, 118.0))
sketch14.addConstraint(Sketcher.Constraint("DistanceX", 21, 3, -1, 1, 98.0))
sketch14.addConstraint(Sketcher.Constraint("DistanceX", 29, 3, -1, 1, 78.0))
sketch14.addConstraint(Sketcher.Constraint("DistanceX", 37, 3, -1, 1, 58.0))
sketch14.addConstraint(Sketcher.Constraint("DistanceX", 45, 3, -1, 1, 38.0))
sketch14.addConstraint(Sketcher.Constraint("DistanceX", 0, 2, -1, 1, 128.0))
sketch14.addConstraint(Sketcher.Constraint("DistanceY", -1, 1, 0, 2, 27.0))
sketch14.setExpression("Constraints[118]", "Params.sketch14_radius")
sketch14.setExpression("Constraints[119]", "Params.sketch14_width")
sketch14.setExpression("Constraints[120]", "Params.sketch14_width2")
sketch14.setExpression("Constraints[121]", "Params.sketch14_height")
sketch14.setExpression("Constraints[122]", "Params.sketch14_height2")
pocket8 = body.newObject("PartDesign::Pocket", "Pocket007")
pocket8.Profile = sketch14
pocket8.setExpression("Length", "Params.pocket8_length")
pocket8.Midplane = True

sketch15 = body.newObject("Sketcher::SketchObject", "Sketch014")
sketch15.AttachmentSupport = (doc.getObject("YZ_Plane"), [""])
sketch15.MapMode = "FlatFace"
sketch15.AttachmentOffset = App.Placement(Vector(0, 0, -144.5), App.Rotation())
sketch15.addGeometry(Part.Circle(Vector(90, 35, 0), Vector(0, 0, 1), 1.3), False)
sketch15.addGeometry(Part.Circle(Vector(-90, 35, 0), Vector(0, 0, 1), 1.3), False)
sketch15.addConstraint(Sketcher.Constraint("Equal", 0, 1))
sketch15.addConstraint(Sketcher.Constraint("Symmetric", 0, 3, 1, 3, -2))
sketch15.addConstraint(Sketcher.Constraint("Diameter", 0, 2.6))
sketch15.addConstraint(Sketcher.Constraint("DistanceX", -1, 1, 0, 3, 90.0))
sketch15.addConstraint(Sketcher.Constraint("DistanceY", -1, 1, 0, 3, 35.0))
sketch15.setExpression("Constraints[2]", "Params.sketch15_diameter")
pocket9 = body.newObject("PartDesign::Pocket", "Pocket008")
pocket9.Profile = sketch15
pocket9.setExpression("Length", "Params.pocket9_length")
pocket9.Midplane = True

doc.recompute()
